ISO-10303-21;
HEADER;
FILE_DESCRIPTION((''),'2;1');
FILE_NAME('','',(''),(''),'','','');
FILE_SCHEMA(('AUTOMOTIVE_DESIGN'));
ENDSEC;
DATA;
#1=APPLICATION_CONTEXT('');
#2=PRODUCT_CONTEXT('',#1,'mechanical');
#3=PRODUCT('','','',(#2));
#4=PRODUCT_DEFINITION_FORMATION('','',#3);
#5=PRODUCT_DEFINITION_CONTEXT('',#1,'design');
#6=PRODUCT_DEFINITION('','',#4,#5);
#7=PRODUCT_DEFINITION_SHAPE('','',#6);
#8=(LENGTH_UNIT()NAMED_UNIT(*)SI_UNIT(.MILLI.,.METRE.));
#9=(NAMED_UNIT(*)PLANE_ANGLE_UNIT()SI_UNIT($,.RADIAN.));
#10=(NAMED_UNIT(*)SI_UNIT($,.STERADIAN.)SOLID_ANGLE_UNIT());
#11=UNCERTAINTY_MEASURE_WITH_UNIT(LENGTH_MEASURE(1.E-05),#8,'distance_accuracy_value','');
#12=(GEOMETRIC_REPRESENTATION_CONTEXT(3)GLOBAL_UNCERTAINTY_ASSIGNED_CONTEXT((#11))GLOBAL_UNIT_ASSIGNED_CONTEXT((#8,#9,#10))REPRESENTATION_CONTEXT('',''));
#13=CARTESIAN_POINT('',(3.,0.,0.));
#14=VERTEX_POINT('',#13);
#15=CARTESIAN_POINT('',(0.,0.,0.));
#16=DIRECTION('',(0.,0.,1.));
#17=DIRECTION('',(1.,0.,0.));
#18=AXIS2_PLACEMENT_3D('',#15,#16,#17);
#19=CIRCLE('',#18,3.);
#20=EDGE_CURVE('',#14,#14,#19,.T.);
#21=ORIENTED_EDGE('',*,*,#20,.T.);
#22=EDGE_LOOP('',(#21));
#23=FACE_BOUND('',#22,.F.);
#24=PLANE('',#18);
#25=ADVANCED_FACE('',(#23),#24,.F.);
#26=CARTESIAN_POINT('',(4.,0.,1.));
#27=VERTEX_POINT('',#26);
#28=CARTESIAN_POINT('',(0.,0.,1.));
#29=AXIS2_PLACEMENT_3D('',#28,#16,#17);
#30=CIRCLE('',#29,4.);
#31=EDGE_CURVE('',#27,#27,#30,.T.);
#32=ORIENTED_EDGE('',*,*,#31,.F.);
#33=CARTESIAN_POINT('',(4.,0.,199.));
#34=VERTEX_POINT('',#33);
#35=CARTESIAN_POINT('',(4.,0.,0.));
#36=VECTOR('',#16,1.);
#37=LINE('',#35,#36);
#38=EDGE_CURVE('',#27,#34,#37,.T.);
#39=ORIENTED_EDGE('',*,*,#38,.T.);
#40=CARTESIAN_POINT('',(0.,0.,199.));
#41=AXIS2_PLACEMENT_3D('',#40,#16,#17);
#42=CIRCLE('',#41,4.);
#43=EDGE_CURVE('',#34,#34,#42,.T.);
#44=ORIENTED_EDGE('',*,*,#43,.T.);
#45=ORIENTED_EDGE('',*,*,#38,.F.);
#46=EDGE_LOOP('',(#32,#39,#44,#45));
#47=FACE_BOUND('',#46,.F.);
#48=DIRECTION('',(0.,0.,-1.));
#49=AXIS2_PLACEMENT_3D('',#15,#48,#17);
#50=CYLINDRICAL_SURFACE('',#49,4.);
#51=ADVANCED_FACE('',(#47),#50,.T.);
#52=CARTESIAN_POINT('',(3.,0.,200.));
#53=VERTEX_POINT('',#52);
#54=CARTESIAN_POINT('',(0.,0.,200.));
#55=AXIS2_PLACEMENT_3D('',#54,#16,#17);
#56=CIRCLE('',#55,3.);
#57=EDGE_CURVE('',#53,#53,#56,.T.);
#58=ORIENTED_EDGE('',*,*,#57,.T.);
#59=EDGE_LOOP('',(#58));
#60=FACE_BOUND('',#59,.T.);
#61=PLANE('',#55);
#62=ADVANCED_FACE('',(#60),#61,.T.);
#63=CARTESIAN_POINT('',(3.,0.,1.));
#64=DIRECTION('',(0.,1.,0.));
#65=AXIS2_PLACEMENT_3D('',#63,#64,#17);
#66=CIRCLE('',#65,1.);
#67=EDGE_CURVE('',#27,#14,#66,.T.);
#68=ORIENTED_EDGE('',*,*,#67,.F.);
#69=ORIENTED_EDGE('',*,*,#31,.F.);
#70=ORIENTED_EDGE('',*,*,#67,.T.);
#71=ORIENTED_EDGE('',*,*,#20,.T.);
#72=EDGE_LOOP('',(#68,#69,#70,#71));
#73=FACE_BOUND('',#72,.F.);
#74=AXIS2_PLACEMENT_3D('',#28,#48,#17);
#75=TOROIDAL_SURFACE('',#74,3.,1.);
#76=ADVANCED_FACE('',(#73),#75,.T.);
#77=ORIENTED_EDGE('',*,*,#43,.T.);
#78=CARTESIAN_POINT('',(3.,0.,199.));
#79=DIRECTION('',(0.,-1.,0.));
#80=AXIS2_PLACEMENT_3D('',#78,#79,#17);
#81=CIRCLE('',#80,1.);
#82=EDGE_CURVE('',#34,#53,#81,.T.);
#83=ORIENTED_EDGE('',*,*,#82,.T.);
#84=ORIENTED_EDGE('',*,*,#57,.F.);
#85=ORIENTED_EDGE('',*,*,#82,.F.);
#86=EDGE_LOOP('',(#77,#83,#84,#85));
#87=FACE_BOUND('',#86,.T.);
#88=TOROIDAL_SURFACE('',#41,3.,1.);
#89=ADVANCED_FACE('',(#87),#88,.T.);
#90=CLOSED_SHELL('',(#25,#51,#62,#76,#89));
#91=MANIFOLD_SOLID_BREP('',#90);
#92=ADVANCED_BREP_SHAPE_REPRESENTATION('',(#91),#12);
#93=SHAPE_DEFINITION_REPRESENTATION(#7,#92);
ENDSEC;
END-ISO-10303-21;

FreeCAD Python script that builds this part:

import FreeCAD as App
import Part
import Sketcher

V = App.Vector
Q = App.Units.Quantity


def edges_at(feature, points):
    """Names of the edges that pass closest to the given points."""
    edges = feature.Shape.Edges
    near = lambda p: min(range(len(edges)), key=lambda i: edges[i].distToShape(Part.Vertex(*p))[0])
    return sorted({f"Edge{near(p) + 1}" for p in points})

doc = App.newDocument("Part")
body = doc.addObject("PartDesign::Body", "Body")

# Sketch on XY plane
sketch1 = body.newObject("Sketcher::SketchObject", "Sketch")
sketch1.AttachmentSupport = (doc.getObject("XY_Plane"), [""])
sketch1.MapMode = "FlatFace"
sketch1.addGeometry(Part.Circle(V(0, 0, 0), V(0, 0, 1), 4), False)
sketch1.addConstraint([
    Sketcher.Constraint("Coincident", 0, 3, -1, 1),
    Sketcher.Constraint("Diameter", 0, Q("8 mm")),
])
pad1 = body.newObject("PartDesign::Pad", "Pad")
pad1.Profile = sketch1
pad1.Length = 200
doc.recompute()

fillet = body.newObject("PartDesign::Fillet", "Fillet")
fillet.Base = (pad1, edges_at(pad1, [(-4, 0, 200), (-4, 0, 0)]))
fillet.Radius = 1

doc.recompute()
